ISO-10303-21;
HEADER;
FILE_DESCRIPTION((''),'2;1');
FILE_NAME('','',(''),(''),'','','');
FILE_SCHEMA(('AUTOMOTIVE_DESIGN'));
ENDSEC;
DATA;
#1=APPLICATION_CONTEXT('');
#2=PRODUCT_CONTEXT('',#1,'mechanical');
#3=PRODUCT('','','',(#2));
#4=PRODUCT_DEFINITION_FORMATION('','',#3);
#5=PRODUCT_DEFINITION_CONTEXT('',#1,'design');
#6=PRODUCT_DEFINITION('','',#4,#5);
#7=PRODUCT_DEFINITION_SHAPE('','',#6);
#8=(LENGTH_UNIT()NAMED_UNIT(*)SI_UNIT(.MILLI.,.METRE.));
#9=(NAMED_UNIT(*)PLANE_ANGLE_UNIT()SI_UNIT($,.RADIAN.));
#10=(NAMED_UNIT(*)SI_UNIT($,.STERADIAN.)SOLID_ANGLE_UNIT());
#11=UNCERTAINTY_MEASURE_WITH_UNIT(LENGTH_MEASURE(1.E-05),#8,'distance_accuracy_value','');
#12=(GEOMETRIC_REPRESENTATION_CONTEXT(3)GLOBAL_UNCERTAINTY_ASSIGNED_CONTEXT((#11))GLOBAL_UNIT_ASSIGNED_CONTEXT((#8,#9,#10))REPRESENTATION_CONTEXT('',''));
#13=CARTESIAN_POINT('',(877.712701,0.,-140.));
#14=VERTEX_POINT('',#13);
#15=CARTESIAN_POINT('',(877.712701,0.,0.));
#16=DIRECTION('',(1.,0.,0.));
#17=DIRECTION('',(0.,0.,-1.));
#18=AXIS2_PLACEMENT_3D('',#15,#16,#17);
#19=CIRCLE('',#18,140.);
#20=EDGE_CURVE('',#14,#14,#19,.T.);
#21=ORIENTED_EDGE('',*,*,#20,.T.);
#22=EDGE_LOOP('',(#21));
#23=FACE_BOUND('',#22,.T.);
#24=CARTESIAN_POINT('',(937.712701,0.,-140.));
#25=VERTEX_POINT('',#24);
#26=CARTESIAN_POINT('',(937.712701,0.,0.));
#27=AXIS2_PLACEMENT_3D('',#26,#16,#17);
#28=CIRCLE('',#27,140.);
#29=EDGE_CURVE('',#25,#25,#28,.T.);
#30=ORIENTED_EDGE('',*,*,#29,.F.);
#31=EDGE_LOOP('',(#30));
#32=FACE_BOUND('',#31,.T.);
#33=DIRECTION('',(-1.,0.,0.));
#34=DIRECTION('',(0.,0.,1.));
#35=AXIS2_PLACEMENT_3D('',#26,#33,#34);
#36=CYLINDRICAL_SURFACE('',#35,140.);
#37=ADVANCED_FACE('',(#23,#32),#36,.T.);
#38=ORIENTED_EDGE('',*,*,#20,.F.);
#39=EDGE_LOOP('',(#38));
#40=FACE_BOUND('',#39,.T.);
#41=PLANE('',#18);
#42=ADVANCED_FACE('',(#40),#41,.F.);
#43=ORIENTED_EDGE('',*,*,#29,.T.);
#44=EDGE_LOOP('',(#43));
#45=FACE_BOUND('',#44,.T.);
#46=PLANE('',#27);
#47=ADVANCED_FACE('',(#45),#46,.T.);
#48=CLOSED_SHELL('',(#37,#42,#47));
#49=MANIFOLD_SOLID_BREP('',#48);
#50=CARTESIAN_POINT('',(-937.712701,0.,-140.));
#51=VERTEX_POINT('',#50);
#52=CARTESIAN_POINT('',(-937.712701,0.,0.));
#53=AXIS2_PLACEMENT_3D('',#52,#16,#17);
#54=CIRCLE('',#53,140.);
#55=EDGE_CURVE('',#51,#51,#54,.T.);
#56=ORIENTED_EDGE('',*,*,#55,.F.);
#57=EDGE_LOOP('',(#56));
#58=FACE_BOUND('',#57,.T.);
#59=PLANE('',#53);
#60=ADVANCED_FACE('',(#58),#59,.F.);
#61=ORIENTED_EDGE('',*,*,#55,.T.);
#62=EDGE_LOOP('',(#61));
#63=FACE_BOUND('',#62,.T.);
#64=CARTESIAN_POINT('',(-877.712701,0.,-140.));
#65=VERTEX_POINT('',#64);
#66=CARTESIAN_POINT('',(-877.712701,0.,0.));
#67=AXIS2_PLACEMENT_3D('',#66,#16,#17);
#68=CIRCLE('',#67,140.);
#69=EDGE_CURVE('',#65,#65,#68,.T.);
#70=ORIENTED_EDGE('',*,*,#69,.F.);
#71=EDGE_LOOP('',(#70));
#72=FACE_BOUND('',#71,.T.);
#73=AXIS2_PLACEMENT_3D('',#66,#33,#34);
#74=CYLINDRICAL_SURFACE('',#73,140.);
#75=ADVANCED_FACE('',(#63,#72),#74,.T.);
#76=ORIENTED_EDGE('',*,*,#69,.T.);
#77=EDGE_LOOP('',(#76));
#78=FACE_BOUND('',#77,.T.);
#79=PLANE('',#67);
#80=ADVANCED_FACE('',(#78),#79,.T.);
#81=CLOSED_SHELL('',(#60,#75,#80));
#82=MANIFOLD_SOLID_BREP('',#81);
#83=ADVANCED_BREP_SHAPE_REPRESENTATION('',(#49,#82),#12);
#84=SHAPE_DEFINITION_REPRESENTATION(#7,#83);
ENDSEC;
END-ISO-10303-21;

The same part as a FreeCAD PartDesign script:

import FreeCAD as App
import Part
import Sketcher
from FreeCAD import Vector
Q = App.Units.Quantity

doc = App.newDocument("Part")
body = doc.addObject("PartDesign::Body", "Body")

# Sketch on YZ plane
sketch1 = doc.addObject("Sketcher::SketchObject", "Sketch")
body.addObject(sketch1)
sketch1.AttachmentSupport = (doc.YZ_Plane, [""])
sketch1.MapMode = "FlatFace"
sketch1.AttachmentOffset = App.Placement(Vector(0, 0, -937.712701), App.Rotation())
sketch1.addGeometry(Part.Circle(Vector(0, 0, 0), Vector(0, 0, 1), 140), False)
sketch1.addConstraint([
    Sketcher.Constraint("Coincident", 0, 3, -1, 1),
    Sketcher.Constraint("Diameter", 0, Q("280 mm")),
])
pad1 = doc.addObject("PartDesign::Pad", "Pad")
body.addObject(pad1)
pad1.Profile = sketch1
pad1.Length = 60
body2 = doc.addObject("PartDesign::Body", "Body001")

# Sketch on YZ plane
sketch2 = doc.addObject("Sketcher::SketchObject", "Sketch001")
body2.addObject(sketch2)
sketch2.AttachmentSupport = (doc.getObject("YZ_Plane001"), [""])
sketch2.MapMode = "FlatFace"
sketch2.AttachmentOffset = App.Placement(Vector(0, 0, 877.712701), App.Rotation())
sketch2.addGeometry(Part.Circle(Vector(0, 0, 0), Vector(0, 0, 1), 140), False)
sketch2.addConstraint([
    Sketcher.Constraint("Coincident", 0, 3, -1, 1),
    Sketcher.Constraint("Diameter", 0, Q("280 mm")),
])
pad2 = doc.addObject("PartDesign::Pad", "Pad001")
body2.addObject(pad2)
pad2.Profile = sketch2
pad2.Length = 60

doc.recompute()
